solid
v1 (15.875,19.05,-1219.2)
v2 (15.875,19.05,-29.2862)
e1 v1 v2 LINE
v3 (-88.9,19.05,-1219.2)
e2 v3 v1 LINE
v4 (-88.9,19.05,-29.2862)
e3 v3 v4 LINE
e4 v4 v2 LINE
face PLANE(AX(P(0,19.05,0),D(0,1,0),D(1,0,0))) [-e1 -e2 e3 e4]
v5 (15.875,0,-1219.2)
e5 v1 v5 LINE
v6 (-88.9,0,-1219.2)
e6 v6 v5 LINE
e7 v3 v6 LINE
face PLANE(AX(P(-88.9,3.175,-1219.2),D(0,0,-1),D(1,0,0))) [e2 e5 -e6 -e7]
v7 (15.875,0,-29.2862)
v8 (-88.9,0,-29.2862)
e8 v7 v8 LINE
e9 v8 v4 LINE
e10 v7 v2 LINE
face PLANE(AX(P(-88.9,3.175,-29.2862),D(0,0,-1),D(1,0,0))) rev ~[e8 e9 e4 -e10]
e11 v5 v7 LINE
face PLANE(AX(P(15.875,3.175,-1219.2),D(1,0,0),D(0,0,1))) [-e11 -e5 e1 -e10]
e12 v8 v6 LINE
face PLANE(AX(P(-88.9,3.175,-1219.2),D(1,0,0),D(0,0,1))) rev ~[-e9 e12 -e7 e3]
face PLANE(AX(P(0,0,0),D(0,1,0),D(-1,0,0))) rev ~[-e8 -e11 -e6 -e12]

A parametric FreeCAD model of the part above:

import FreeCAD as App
import Part
import Sketcher
Q = App.Units.Quantity


def add_polygon(sketch, points):
    """Adds a closed chain of lines whose ends are joined by coincident constraints."""
    first, n = sketch.GeometryCount, len(points)
    for a, b in zip(points, points[1:] + points[:1]):
        sketch.addGeometry(Part.LineSegment(App.Vector(*a, 0), App.Vector(*b, 0)), False)
    for i in range(n):
        sketch.addConstraint(Sketcher.Constraint("Coincident", first + i, 2, first + (i + 1) % n, 1))

doc = App.newDocument("Part")
body = doc.addObject("PartDesign::Body", "Body")

# Sketch on XZ plane
sketch1 = body.newObject("Sketcher::SketchObject", "Sketch")
sketch1.AttachmentSupport = (doc.getObject("XZ_Plane"), [""])
sketch1.MapMode = "FlatFace"
add_polygon(sketch1, [(-89, 0), (0, 0), (0, -1219), (-89, -1219)])  # lines 0-3
sketch1.addConstraint(Sketcher.Constraint("Horizontal", 0))
sketch1.addConstraint(Sketcher.Constraint("Vertical", 1))
sketch1.addConstraint(Sketcher.Constraint("Horizontal", 2))
sketch1.addConstraint(Sketcher.Constraint("Vertical", 3))
sketch1.addConstraint(Sketcher.Constraint("Coincident", 0, 2, -1, 1))
sketch1.addConstraint(Sketcher.Constraint("DistanceY", 1, 2, 1, 1, Q("48 in")))
sketch1.addConstraint(Sketcher.Constraint("DistanceX", 0, 1, 0, 2, Q("3.5 in")))
pad1 = body.newObject("PartDesign::Pad", "Pad")
pad1.Profile = sketch1
pad1.Length = Q("0.125 in")
pad1.Reversed = True

# Sketch on YZ plane
sketch2 = body.newObject("Sketcher::SketchObject", "Sketch001")
sketch2.AttachmentSupport = (doc.getObject("YZ_Plane"), [""])
sketch2.MapMode = "FlatFace"
add_polygon(sketch2, [(0, 0), (0, -1219.2), (3.2, -1219.2), (3.2, 0)])  # lines 0-3
sketch2.addConstraint(Sketcher.Constraint("Vertical", 0))
sketch2.addConstraint(Sketcher.Constraint("Horizontal", 1))
sketch2.addConstraint(Sketcher.Constraint("Vertical", 2))
sketch2.addConstraint(Sketcher.Constraint("Horizontal", 3))
sketch2.addConstraint(Sketcher.Constraint("Coincident", 3, 2, -1, 1))
sketch2.addConstraint(Sketcher.Constraint("DistanceY", 0, 2, 0, 1, Q("48 in")))
sketch2.addConstraint(Sketcher.Constraint("DistanceX", 1, 1, 1, 2, Q("0.125 in")))
pad2 = body.newObject("PartDesign::Pad", "Pad001")
pad2.Profile = sketch2
pad2.Length = Q("0.625 in")

# Sketch on XY plane
sketch3 = body.newObject("Sketcher::SketchObject", "Sketch002")
sketch3.AttachmentSupport = (doc.getObject("XY_Plane"), [""])
sketch3.MapMode = "FlatFace"
add_polygon(sketch3, [(-88.9, 0), (15.9, 0), (15.9, 3.2), (-88.9, 3.2)])  # lines 0-3
sketch3.addConstraint(Sketcher.Constraint("Horizontal", 0))
sketch3.addConstraint(Sketcher.Constraint("Vertical", 1))
sketch3.addConstraint(Sketcher.Constraint("Horizontal", 2))
sketch3.addConstraint(Sketcher.Constraint("Vertical", 3))
sketch3.addConstraint(Sketcher.Constraint("PointOnObject", 0, 2, -1))
sketch3.addConstraint(Sketcher.Constraint("DistanceX", 2, 2, -1, 1, Q("3.5 in")))
sketch3.addConstraint(Sketcher.Constraint("DistanceX", 0, 1, 0, 2, Q("4.125 in")))
sketch3.addConstraint(Sketcher.Constraint("DistanceY", 1, 1, 1, 2, Q("0.125 in")))
pocket1 = body.newObject("PartDesign::Pocket", "Pocket")
pocket1.Profile = sketch3
pocket1.Length = Q("1.153 in")

# Sketch on XZ plane
sketch4 = body.newObject("Sketcher::SketchObject", "Sketch003")
sketch4.AttachmentSupport = (doc.getObject("XZ_Plane"), [""])
sketch4.MapMode = "FlatFace"
sketch4.AttachmentOffset = App.Placement(App.Vector(0, 0, -0.125 * 25.4), App.Rotation())
add_polygon(sketch4, [(-89, -1219), (-89, -29), (16, -29), (16, -1219)])  # lines 0-3
sketch4.addConstraint(Sketcher.Constraint("Vertical", 0))
sketch4.addConstraint(Sketcher.Constraint("Horizontal", 1))
sketch4.addConstraint(Sketcher.Constraint("Vertical", 2))
sketch4.addConstraint(Sketcher.Constraint("Horizontal", 3))
sketch4.addConstraint(Sketcher.Constraint("DistanceY", 2, 2, -1, 1, Q("48 in")))
sketch4.addConstraint(Sketcher.Constraint("DistanceX", 0, 2, -1, 1, Q("3.5 in")))
sketch4.addConstraint(Sketcher.Constraint("DistanceX", 1, 1, 1, 2, Q("4.125 in")))
sketch4.addConstraint(Sketcher.Constraint("DistanceY", 0, 1, 0, 2, Q("46.847 in")))
pad3 = body.newObject("PartDesign::Pad", "Pad002")
pad3.Profile = sketch4
pad3.Length = Q("0.625 in")
pad3.Reversed = True

doc.recompute()
